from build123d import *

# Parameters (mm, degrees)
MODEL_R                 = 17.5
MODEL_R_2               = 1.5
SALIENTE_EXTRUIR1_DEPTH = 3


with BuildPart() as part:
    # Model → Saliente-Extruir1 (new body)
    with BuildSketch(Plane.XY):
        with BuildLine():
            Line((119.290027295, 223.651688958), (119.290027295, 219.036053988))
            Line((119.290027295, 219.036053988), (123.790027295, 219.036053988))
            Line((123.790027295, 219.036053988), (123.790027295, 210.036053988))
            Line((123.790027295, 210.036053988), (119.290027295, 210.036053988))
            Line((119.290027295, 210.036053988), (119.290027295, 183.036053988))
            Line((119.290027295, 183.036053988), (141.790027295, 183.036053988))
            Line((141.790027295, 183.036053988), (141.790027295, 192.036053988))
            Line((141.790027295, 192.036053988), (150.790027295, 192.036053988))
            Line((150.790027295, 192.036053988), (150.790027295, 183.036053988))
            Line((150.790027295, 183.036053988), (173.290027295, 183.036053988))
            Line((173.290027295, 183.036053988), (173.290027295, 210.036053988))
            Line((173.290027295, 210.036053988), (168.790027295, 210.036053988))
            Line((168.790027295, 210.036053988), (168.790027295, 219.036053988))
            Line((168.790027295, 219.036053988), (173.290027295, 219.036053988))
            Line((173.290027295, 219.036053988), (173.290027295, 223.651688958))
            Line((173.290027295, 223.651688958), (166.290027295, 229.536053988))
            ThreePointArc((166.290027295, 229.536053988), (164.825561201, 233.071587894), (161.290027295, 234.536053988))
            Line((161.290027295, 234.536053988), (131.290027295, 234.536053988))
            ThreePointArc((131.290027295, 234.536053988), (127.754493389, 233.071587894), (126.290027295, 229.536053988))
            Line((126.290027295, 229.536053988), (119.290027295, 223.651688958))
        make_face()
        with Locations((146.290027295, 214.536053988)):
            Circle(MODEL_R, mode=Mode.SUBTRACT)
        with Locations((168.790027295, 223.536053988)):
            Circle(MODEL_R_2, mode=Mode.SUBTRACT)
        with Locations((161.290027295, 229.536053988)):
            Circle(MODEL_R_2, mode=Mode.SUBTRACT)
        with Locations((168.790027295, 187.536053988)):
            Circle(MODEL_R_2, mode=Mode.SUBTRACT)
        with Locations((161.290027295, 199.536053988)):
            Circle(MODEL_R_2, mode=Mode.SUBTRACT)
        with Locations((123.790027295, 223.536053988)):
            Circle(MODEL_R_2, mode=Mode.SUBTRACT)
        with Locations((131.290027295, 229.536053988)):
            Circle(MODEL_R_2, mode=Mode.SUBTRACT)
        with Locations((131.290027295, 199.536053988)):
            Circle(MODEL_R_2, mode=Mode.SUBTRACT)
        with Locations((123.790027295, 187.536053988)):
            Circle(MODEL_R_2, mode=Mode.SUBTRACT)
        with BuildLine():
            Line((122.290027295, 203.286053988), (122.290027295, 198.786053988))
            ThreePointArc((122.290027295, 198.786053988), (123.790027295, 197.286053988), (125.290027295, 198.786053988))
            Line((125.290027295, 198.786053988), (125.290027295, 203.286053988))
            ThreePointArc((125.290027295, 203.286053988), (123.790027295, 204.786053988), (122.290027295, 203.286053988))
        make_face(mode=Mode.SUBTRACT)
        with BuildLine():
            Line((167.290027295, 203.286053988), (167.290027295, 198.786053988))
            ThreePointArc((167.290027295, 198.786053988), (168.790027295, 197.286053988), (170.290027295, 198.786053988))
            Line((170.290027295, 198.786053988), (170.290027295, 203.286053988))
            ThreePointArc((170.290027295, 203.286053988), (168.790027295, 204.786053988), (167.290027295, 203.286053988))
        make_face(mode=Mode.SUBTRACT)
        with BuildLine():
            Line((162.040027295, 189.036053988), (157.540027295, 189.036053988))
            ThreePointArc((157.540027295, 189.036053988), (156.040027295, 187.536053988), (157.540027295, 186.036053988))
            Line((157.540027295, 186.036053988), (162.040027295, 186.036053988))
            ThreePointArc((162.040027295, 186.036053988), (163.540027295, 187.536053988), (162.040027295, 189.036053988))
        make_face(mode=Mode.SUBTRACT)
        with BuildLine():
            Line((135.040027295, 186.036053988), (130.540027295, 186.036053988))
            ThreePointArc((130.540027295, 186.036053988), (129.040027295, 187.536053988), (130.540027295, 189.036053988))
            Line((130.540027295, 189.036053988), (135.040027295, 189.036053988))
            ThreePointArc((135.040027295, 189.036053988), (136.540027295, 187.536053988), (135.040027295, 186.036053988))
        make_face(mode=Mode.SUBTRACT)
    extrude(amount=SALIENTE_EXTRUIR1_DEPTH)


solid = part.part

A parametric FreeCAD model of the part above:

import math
import FreeCAD as App
import Part
import Sketcher

V = App.Vector

doc = App.newDocument("Part")
params = doc.addObject("Spreadsheet::Sheet", "Params")
for row, (alias, value) in enumerate([
    ("sketch1_diameter", "3 mm"),
    ("sketch1_diameter2", "35 mm"),
    ("sketch1_radius", "5 mm"),
    ("sketch1_width", "9 mm"),
    ("sketch1_width2", "30 mm"),
    ("pad1_length", "3 mm"),
], start=1):
    params.set(f"A{row}", alias)
    params.set(f"B{row}", "=" + value)
    params.setAlias(f"B{row}", alias)

body = doc.addObject("PartDesign::Body", "Body")

sketch1 = body.newObject("Sketcher::SketchObject", "Sketch")
sketch1.AttachmentSupport = (doc.getObject("XY_Plane"), [""])
sketch1.MapMode = "FlatFace"
sketch1.addGeometry(Part.LineSegment(V(119.290027, 223.651689, 0), V(119.290027, 219.036054, 0)), False)
sketch1.addGeometry(Part.LineSegment(V(119.290027, 219.036054, 0), V(123.790027, 219.036054, 0)), False)
sketch1.addGeometry(Part.LineSegment(V(123.790027, 219.036054, 0), V(123.790027, 210.036054, 0)), False)
sketch1.addGeometry(Part.LineSegment(V(123.790027, 210.036054, 0), V(119.290027, 210.036054, 0)), False)
sketch1.addGeometry(Part.LineSegment(V(119.290027, 210.036054, 0), V(119.290027, 183.036054, 0)), False)
sketch1.addGeometry(Part.LineSegment(V(119.290027, 183.036054, 0), V(141.790027, 183.036054, 0)), False)
sketch1.addGeometry(Part.LineSegment(V(141.790027, 183.036054, 0), V(141.790027, 192.036054, 0)), False)
sketch1.addGeometry(Part.LineSegment(V(141.790027, 192.036054, 0), V(150.790027, 192.036054, 0)), False)
sketch1.addGeometry(Part.LineSegment(V(150.790027, 192.036054, 0), V(150.790027, 183.036054, 0)), False)
sketch1.addGeometry(Part.LineSegment(V(150.790027, 183.036054, 0), V(173.290027, 183.036054, 0)), False)
sketch1.addGeometry(Part.LineSegment(V(173.290027, 183.036054, 0), V(173.290027, 210.036054, 0)), False)
sketch1.addGeometry(Part.LineSegment(V(173.290027, 210.036054, 0), V(168.790027, 210.036054, 0)), False)
sketch1.addGeometry(Part.LineSegment(V(168.790027, 210.036054, 0), V(168.790027, 219.036054, 0)), False)
sketch1.addGeometry(Part.LineSegment(V(168.790027, 219.036054, 0), V(173.290027, 219.036054, 0)), False)
sketch1.addGeometry(Part.LineSegment(V(173.290027, 219.036054, 0), V(173.290027, 223.651689, 0)), False)
sketch1.addGeometry(Part.LineSegment(V(173.290027, 223.651689, 0), V(166.290027, 229.536054, 0)), False)
sketch1.addGeometry(Part.ArcOfCircle(Part.Circle(V(161.290027, 229.536054, 0), V(0, 0, 1), 5), math.radians(0), math.radians(90)), False)
sketch1.addGeometry(Part.LineSegment(V(161.290027, 234.536054, 0), V(131.290027, 234.536054, 0)), False)
sketch1.addGeometry(Part.ArcOfCircle(Part.Circle(V(131.290027, 229.536054, 0), V(0, 0, 1), 5), math.radians(90), math.radians(180)), False)
sketch1.addGeometry(Part.LineSegment(V(126.290027, 229.536054, 0), V(119.290027, 223.651689, 0)), False)
sketch1.addGeometry(Part.Circle(V(123.790027, 187.536054, 0), V(0, 0, 1), 1.5), False)
sketch1.addGeometry(Part.ArcOfCircle(Part.Circle(V(135.040027, 187.536054, 0), V(0, 0, 1), 1.5), math.radians(-90), math.radians(90)), False)
sketch1.addGeometry(Part.LineSegment(V(135.040027, 186.036054, 0), V(130.540027, 186.036054, 0)), False)
sketch1.addGeometry(Part.ArcOfCircle(Part.Circle(V(130.540027, 187.536054, 0), V(0, 0, 1), 1.5), math.radians(90), math.radians(270)), False)
sketch1.addGeometry(Part.LineSegment(V(130.540027, 189.036054, 0), V(135.040027, 189.036054, 0)), False)
sketch1.addGeometry(Part.LineSegment(V(122.290027, 198.786054, 0), V(122.290027, 203.286054, 0)), False)
sketch1.addGeometry(Part.ArcOfCircle(Part.Circle(V(123.790027, 203.286054, 0), V(0, 0, 1), 1.5), math.radians(0), math.radians(180)), False)
sketch1.addGeometry(Part.LineSegment(V(125.290027, 203.286054, 0), V(125.290027, 198.786054, 0)), False)
sketch1.addGeometry(Part.ArcOfCircle(Part.Circle(V(123.790027, 198.786054, 0), V(0, 0, 1), 1.5), math.radians(180), math.radians(360)), False)
sketch1.addGeometry(Part.Circle(V(131.290027, 199.536054, 0), V(0, 0, 1), 1.5), False)
sketch1.addGeometry(Part.LineSegment(V(157.540027, 189.036054, 0), V(162.040027, 189.036054, 0)), False)
sketch1.addGeometry(Part.ArcOfCircle(Part.Circle(V(162.040027, 187.536054, 0), V(0, 0, 1), 1.5), math.radians(-90), math.radians(90)), False)
sketch1.addGeometry(Part.LineSegment(V(162.040027, 186.036054, 0), V(157.540027, 186.036054, 0)), False)
sketch1.addGeometry(Part.ArcOfCircle(Part.Circle(V(157.540027, 187.536054, 0), V(0, 0, 1), 1.5), math.radians(90), math.radians(270)), False)
sketch1.addGeometry(Part.Circle(V(168.790027, 187.536054, 0), V(0, 0, 1), 1.5), False)
sketch1.addGeometry(Part.Circle(V(161.290027, 199.536054, 0), V(0, 0, 1), 1.5), False)
sketch1.addGeometry(Part.LineSegment(V(167.290027, 198.786054, 0), V(167.290027, 203.286054, 0)), False)
sketch1.addGeometry(Part.ArcOfCircle(Part.Circle(V(168.790027, 203.286054, 0), V(0, 0, 1), 1.5), math.radians(0), math.radians(180)), False)
sketch1.addGeometry(Part.LineSegment(V(170.290027, 203.286054, 0), V(170.290027, 198.786054, 0)), False)
sketch1.addGeometry(Part.ArcOfCircle(Part.Circle(V(168.790027, 198.786054, 0), V(0, 0, 1), 1.5), math.radians(180), math.radians(360)), False)
sketch1.addGeometry(Part.Circle(V(146.290027, 214.536054, 0), V(0, 0, 1), 17.5), False)
sketch1.addGeometry(Part.Circle(V(123.790027, 223.536054, 0), V(0, 0, 1), 1.5), False)
sketch1.addGeometry(Part.Circle(V(131.290027, 229.536054, 0), V(0, 0, 1), 1.5), False)
sketch1.addGeometry(Part.Circle(V(168.790027, 223.536054, 0), V(0, 0, 1), 1.5), False)
sketch1.addGeometry(Part.Circle(V(161.290027, 229.536054, 0), V(0, 0, 1), 1.5), False)
sketch1.addConstraint(Sketcher.Constraint("Coincident", 0, 2, 1, 1))
sketch1.addConstraint(Sketcher.Constraint("Coincident", 1, 2, 2, 1))
sketch1.addConstraint(Sketcher.Constraint("Coincident", 2, 2, 3, 1))
sketch1.addConstraint(Sketcher.Constraint("Coincident", 3, 2, 4, 1))
sketch1.addConstraint(Sketcher.Constraint("Coincident", 4, 2, 5, 1))
sketch1.addConstraint(Sketcher.Constraint("Coincident", 5, 2, 6, 1))
sketch1.addConstraint(Sketcher.Constraint("Coincident", 6, 2, 7, 1))
sketch1.addConstraint(Sketcher.Constraint("Coincident", 7, 2, 8, 1))
sketch1.addConstraint(Sketcher.Constraint("Coincident", 8, 2, 9, 1))
sketch1.addConstraint(Sketcher.Constraint("Coincident", 9, 2, 10, 1))
sketch1.addConstraint(Sketcher.Constraint("Coincident", 10, 2, 11, 1))
sketch1.addConstraint(Sketcher.Constraint("Coincident", 11, 2, 12, 1))
sketch1.addConstraint(Sketcher.Constraint("Coincident", 12, 2, 13, 1))
sketch1.addConstraint(Sketcher.Constraint("Coincident", 13, 2, 14, 1))
sketch1.addConstraint(Sketcher.Constraint("Coincident", 14, 2, 15, 1))
sketch1.addConstraint(Sketcher.Constraint("Coincident", 15, 2, 16, 1))
sketch1.addConstraint(Sketcher.Constraint("Tangent", 16, 2, 17, 1))
sketch1.addConstraint(Sketcher.Constraint("Tangent", 17, 2, 18, 1))
sketch1.addConstraint(Sketcher.Constraint("Coincident", 18, 2, 19, 1))
sketch1.addConstraint(Sketcher.Constraint("Coincident", 19, 2, 0, 1))
sketch1.addConstraint(Sketcher.Constraint("Tangent", 21, 1, 22, 1))
sketch1.addConstraint(Sketcher.Constraint("Tangent", 22, 2, 23, 2))
sketch1.addConstraint(Sketcher.Constraint("Tangent", 23, 1, 24, 1))
sketch1.addConstraint(Sketcher.Constraint("Tangent", 24, 2, 21, 2))
sketch1.addConstraint(Sketcher.Constraint("Tangent", 25, 2, 26, 2))
sketch1.addConstraint(Sketcher.Constraint("Tangent", 26, 1, 27, 1))
sketch1.addConstraint(Sketcher.Constraint("Tangent", 27, 2, 28, 2))
sketch1.addConstraint(Sketcher.Constraint("Tangent", 28, 1, 25, 1))
sketch1.addConstraint(Sketcher.Constraint("Tangent", 30, 2, 31, 2))
sketch1.addConstraint(Sketcher.Constraint("Tangent", 31, 1, 32, 1))
sketch1.addConstraint(Sketcher.Constraint("Tangent", 32, 2, 33, 2))
sketch1.addConstraint(Sketcher.Constraint("Tangent", 33, 1, 30, 1))
sketch1.addConstraint(Sketcher.Constraint("Tangent", 36, 2, 37, 2))
sketch1.addConstraint(Sketcher.Constraint("Tangent", 37, 1, 38, 1))
sketch1.addConstraint(Sketcher.Constraint("Tangent", 38, 2, 39, 2))
sketch1.addConstraint(Sketcher.Constraint("Tangent", 39, 1, 36, 1))
sketch1.addConstraint(Sketcher.Constraint("Vertical", 0))
sketch1.addConstraint(Sketcher.Constraint("Horizontal", 1))
sketch1.addConstraint(Sketcher.Constraint("Vertical", 2))
sketch1.addConstraint(Sketcher.Constraint("Horizontal", 3))
sketch1.addConstraint(Sketcher.Constraint("Vertical", 4))
sketch1.addConstraint(Sketcher.Constraint("Horizontal", 5))
sketch1.addConstraint(Sketcher.Constraint("Vertical", 6))
sketch1.addConstraint(Sketcher.Constraint("Horizontal", 7))
sketch1.addConstraint(Sketcher.Constraint("Vertical", 8))
sketch1.addConstraint(Sketcher.Constraint("Horizontal", 9))
sketch1.addConstraint(Sketcher.Constraint("Vertical", 10))
sketch1.addConstraint(Sketcher.Constraint("Horizontal", 11))
sketch1.addConstraint(Sketcher.Constraint("Vertical", 12))
sketch1.addConstraint(Sketcher.Constraint("Horizontal", 13))
sketch1.addConstraint(Sketcher.Constraint("Vertical", 14))
sketch1.addConstraint(Sketcher.Constraint("Horizontal", 17))
sketch1.addConstraint(Sketcher.Constraint("Horizontal", 22))
sketch1.addConstraint(Sketcher.Constraint("Horizontal", 24))
sketch1.addConstraint(Sketcher.Constraint("Vertical", 25))
sketch1.addConstraint(Sketcher.Constraint("Vertical", 27))
sketch1.addConstraint(Sketcher.Constraint("Horizontal", 30))
sketch1.addConstraint(Sketcher.Constraint("Horizontal", 32))
sketch1.addConstraint(Sketcher.Constraint("Vertical", 36))
sketch1.addConstraint(Sketcher.Constraint("Vertical", 38))
sketch1.addConstraint(Sketcher.Constraint("Coincident", 42, 3, 18, 3))
sketch1.addConstraint(Sketcher.Constraint("Coincident", 44, 3, 16, 3))
sketch1.addConstraint(Sketcher.Constraint("Equal", 16, 18))
sketch1.addConstraint(Sketcher.Constraint("Equal", 20, 21))
sketch1.addConstraint(Sketcher.Constraint("Equal", 23, 26))
sketch1.addConstraint(Sketcher.Constraint("Equal", 28, 29))
sketch1.addConstraint(Sketcher.Constraint("Equal", 29, 31))
sketch1.addConstraint(Sketcher.Constraint("Equal", 33, 34))
sketch1.addConstraint(Sketcher.Constraint("Equal", 34, 35))
sketch1.addConstraint(Sketcher.Constraint("Equal", 35, 37))
sketch1.addConstraint(Sketcher.Constraint("Equal", 39, 41))
sketch1.addConstraint(Sketcher.Constraint("Equal", 41, 42))
sketch1.addConstraint(Sketcher.Constraint("Equal", 42, 43))
sketch1.addConstraint(Sketcher.Constraint("Equal", 43, 44))
sketch1.addConstraint(Sketcher.Constraint("Horizontal", 20, 3, 21, 3))
sketch1.addConstraint(Sketcher.Constraint("Horizontal", 23, 3, 31, 3))
sketch1.addConstraint(Sketcher.Constraint("Horizontal", 33, 3, 34, 3))
sketch1.addConstraint(Sketcher.Constraint("Horizontal", 29, 3, 35, 3))
sketch1.addConstraint(Sketcher.Constraint("Horizontal", 26, 3, 37, 3))
sketch1.addConstraint(Sketcher.Constraint("Horizontal", 28, 3, 39, 3))
sketch1.addConstraint(Sketcher.Constraint("Horizontal", 41, 3, 43, 3))
sketch1.addConstraint(Sketcher.Constraint("Horizontal", 5, 2, 8, 2))
sketch1.addConstraint(Sketcher.Constraint("Horizontal", 3, 2, 10, 2))
sketch1.addConstraint(Sketcher.Constraint("Horizontal", 1, 2, 12, 2))
sketch1.addConstraint(Sketcher.Constraint("Horizontal", 44, 3, 15, 2))
sketch1.addConstraint(Sketcher.Constraint("Horizontal", 15, 2, 18, 2))
sketch1.addConstraint(Sketcher.Constraint("Horizontal", 14, 2, 19, 2))
sketch1.addConstraint(Sketcher.Constraint("Vertical", 20, 3, 26, 3))
sketch1.addConstraint(Sketcher.Constraint("Vertical", 18, 3, 29, 3))
sketch1.addConstraint(Sketcher.Constraint("Vertical", 16, 3, 35, 3))
sketch1.addConstraint(Sketcher.Constraint("Vertical", 34, 3, 37, 3))
sketch1.addConstraint(Sketcher.Constraint("Vertical", 28, 3, 41, 3))
sketch1.addConstraint(Sketcher.Constraint("Vertical", 39, 3, 43, 3))
sketch1.addConstraint(Sketcher.Constraint("Vertical", 41, 3, 1, 2))
sketch1.addConstraint(Sketcher.Constraint("Vertical", 0, 2, 3, 2))
sketch1.addConstraint(Sketcher.Constraint("Vertical", 43, 3, 11, 2))
sketch1.addConstraint(Sketcher.Constraint("Vertical", 10, 2, 13, 2))
sketch1.addConstraint(Sketcher.Constraint("Equal", 5, 9))
sketch1.addConstraint(Sketcher.Constraint("Equal", 3, 11))
sketch1.addConstraint(Sketcher.Constraint("Equal", 13, 22))
sketch1.addConstraint(Sketcher.Constraint("Equal", 24, 30))
sketch1.addConstraint(Sketcher.Constraint("Equal", 7, 2))
sketch1.addConstraint(Sketcher.Constraint("Equal", 2, 6))
sketch1.addConstraint(Sketcher.Constraint("Equal", 32, 25))
sketch1.addConstraint(Sketcher.Constraint("Equal", 15, 19))
sketch1.addConstraint(Sketcher.Constraint("Diameter", 20, 3.0))
sketch1.addConstraint(Sketcher.Constraint("Diameter", 40, 35.0))
sketch1.addConstraint(Sketcher.Constraint("Radius", 16, 5.0))
sketch1.addConstraint(Sketcher.Constraint("DistanceX", 7, 1, 7, 2, 9.0))
sketch1.addConstraint(Sketcher.Constraint("DistanceX", 17, 2, 17, 1, 30.0))
sketch1.addConstraint(Sketcher.Constraint("DistanceY", 4, 2, 4, 1, 27.0))
sketch1.addConstraint(Sketcher.Constraint("DistanceX", 1, 1, 1, 2, 4.5))
sketch1.addConstraint(Sketcher.Constraint("DistanceX", 5, 1, 5, 2, 22.5))
sketch1.addConstraint(Sketcher.Constraint("DistanceY", 20, 3, 18, 3, 42.0))
sketch1.addConstraint(Sketcher.Constraint("DistanceY", 23, 3, 29, 3, 12.0))
sketch1.addConstraint(Sketcher.Constraint("DistanceX", 21, 3, 31, 3, 27.0))
sketch1.addConstraint(Sketcher.Constraint("DistanceX", 40, 3, 16, 3, 15.0))
sketch1.addConstraint(Sketcher.Constraint("DistanceY", 40, 3, 16, 3, 15.0))
sketch1.addConstraint(Sketcher.Constraint("DistanceY", 41, 3, 18, 3, 6.0))
sketch1.addConstraint(Sketcher.Constraint("DistanceY", 5, 2, 21, 1, 3.0))
sketch1.addConstraint(Sketcher.Constraint("DistanceX", 20, 3, 21, 3, 11.25))
sketch1.addConstraint(Sketcher.Constraint("DistanceY", 20, 3, 26, 3, 15.75))
sketch1.addConstraint(Sketcher.Constraint("Distance", 15, 9.144712))
sketch1.addConstraint(Sketcher.Constraint("DistanceY", -1, 1, 14, 2, 223.651689))
sketch1.addConstraint(Sketcher.Constraint("DistanceX", -1, 1, 16, 3, 161.290027))
sketch1.setExpression("Constraints[105]", "Params.sketch1_diameter")
sketch1.setExpression("Constraints[106]", "Params.sketch1_diameter2")
sketch1.setExpression("Constraints[107]", "Params.sketch1_radius")
sketch1.setExpression("Constraints[108]", "Params.sketch1_width")
sketch1.setExpression("Constraints[109]", "Params.sketch1_width2")
pad1 = body.newObject("PartDesign::Pad", "Pad")
pad1.Profile = sketch1
pad1.setExpression("Length", "Params.pad1_length")

doc.recompute()
